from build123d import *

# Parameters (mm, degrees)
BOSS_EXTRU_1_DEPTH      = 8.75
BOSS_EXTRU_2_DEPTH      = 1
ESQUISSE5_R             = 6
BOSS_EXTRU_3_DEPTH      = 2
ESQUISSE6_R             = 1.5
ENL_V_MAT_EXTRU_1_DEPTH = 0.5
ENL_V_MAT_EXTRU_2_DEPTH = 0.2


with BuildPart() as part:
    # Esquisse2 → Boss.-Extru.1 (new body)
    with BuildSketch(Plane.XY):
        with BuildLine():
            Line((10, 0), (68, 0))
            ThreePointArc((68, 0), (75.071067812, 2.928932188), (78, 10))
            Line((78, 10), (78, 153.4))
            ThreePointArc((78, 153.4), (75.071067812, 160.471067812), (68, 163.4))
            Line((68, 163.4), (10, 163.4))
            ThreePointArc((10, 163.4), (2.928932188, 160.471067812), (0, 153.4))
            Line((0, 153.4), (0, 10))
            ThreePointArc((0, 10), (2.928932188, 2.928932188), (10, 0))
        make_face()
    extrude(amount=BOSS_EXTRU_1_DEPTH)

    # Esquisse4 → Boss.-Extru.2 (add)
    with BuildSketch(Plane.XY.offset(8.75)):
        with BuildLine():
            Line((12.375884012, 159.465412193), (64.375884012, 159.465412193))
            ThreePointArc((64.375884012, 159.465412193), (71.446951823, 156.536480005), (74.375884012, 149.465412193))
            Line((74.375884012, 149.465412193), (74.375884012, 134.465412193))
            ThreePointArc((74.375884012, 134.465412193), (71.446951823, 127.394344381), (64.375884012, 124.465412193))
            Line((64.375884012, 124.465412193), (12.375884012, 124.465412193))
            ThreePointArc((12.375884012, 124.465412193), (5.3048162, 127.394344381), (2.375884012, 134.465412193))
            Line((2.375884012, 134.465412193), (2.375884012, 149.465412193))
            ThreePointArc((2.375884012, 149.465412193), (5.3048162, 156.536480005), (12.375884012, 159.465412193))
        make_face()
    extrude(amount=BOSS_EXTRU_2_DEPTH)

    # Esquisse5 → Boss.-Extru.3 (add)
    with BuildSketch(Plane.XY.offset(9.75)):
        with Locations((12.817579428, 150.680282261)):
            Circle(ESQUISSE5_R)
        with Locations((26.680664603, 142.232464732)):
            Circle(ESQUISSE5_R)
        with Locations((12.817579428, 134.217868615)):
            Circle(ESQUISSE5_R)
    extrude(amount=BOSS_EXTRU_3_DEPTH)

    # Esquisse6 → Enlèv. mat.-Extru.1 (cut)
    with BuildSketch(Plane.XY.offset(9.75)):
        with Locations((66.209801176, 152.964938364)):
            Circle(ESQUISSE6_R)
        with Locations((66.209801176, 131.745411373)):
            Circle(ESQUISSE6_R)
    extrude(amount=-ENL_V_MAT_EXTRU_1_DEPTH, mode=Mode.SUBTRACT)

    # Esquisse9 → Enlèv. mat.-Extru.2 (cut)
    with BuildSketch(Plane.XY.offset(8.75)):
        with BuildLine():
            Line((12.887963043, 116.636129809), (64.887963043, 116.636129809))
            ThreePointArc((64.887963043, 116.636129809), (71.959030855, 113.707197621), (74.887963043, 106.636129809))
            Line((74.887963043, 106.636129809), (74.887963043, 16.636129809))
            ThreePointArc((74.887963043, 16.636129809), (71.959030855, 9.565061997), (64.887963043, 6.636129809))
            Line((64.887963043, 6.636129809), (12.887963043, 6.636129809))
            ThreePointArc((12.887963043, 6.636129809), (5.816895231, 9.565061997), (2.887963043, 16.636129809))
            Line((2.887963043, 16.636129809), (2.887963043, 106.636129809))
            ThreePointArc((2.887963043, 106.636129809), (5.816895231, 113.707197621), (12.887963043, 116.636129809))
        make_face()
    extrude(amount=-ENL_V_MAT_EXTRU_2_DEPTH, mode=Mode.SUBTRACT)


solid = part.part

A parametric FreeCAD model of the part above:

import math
import FreeCAD as App
import Part
import Sketcher
from FreeCAD import Vector

doc = App.newDocument("Part")
body = doc.addObject("PartDesign::Body", "Body")

sketch1 = body.newObject("Sketcher::SketchObject", "Sketch")
sketch1.AttachmentSupport = (doc.getObject("XY_Plane"), [""])
sketch1.MapMode = "FlatFace"
sketch1.addGeometry([
    Part.LineSegment(Vector(10, 0, 0), Vector(68, 0, 0)),
    Part.ArcOfCircle(Part.Circle(Vector(68, 10, 0), Vector(0, 0, 1), 10), math.radians(-90), math.radians(0)),
    Part.LineSegment(Vector(78, 10, 0), Vector(78, 153, 0)),
    Part.ArcOfCircle(Part.Circle(Vector(68, 153, 0), Vector(0, 0, 1), 10), math.radians(0), math.radians(90)),
    Part.LineSegment(Vector(68, 163, 0), Vector(10, 163, 0)),
    Part.ArcOfCircle(Part.Circle(Vector(10, 153, 0), Vector(0, 0, 1), 10), math.radians(90), math.radians(180)),
    Part.LineSegment(Vector(0, 153, 0), Vector(0, 10, 0)),
    Part.ArcOfCircle(Part.Circle(Vector(10, 10, 0), Vector(0, 0, 1), 10), math.radians(180), math.radians(270)),
], False)
sketch1.addConstraint([
    Sketcher.Constraint("Tangent", 0, 2, 1, 1),
    Sketcher.Constraint("Tangent", 1, 2, 2, 1),
    Sketcher.Constraint("Tangent", 2, 2, 3, 1),
    Sketcher.Constraint("Tangent", 3, 2, 4, 1),
    Sketcher.Constraint("Tangent", 4, 2, 5, 1),
    Sketcher.Constraint("Tangent", 5, 2, 6, 1),
    Sketcher.Constraint("Tangent", 6, 2, 7, 1),
    Sketcher.Constraint("Tangent", 7, 2, 0, 1),
    Sketcher.Constraint("Horizontal", 0),
    Sketcher.Constraint("Vertical", 2),
    Sketcher.Constraint("Horizontal", 4),
    Sketcher.Constraint("Vertical", 6),
    Sketcher.Constraint("Equal", 1, 3),
    Sketcher.Constraint("Equal", 3, 5),
    Sketcher.Constraint("Equal", 5, 7),
    Sketcher.Constraint("PointOnObject", 0, 2, -1),
    Sketcher.Constraint("PointOnObject", 5, 2, -2),
    Sketcher.Constraint("Radius", 1, 10.0),
    Sketcher.Constraint("DistanceX", 0, 1, 0, 2, 58.0),
    Sketcher.Constraint("DistanceY", 2, 1, 2, 2, 143.4),
])
pad1 = body.newObject("PartDesign::Pad", "Pad")
pad1.Profile = sketch1
pad1.Length = 8.75

sketch2 = body.newObject("Sketcher::SketchObject", "Sketch001")
sketch2.AttachmentSupport = (doc.getObject("XY_Plane"), [""])
sketch2.MapMode = "FlatFace"
sketch2.AttachmentOffset = App.Placement(Vector(0, 0, 8.75), App.Rotation())
sketch2.addGeometry([
    Part.LineSegment(Vector(64, 159, 0), Vector(12, 159, 0)),
    Part.ArcOfCircle(Part.Circle(Vector(12, 149, 0), Vector(0, 0, 1), 10), math.radians(90), math.radians(180)),
    Part.LineSegment(Vector(2, 149, 0), Vector(2, 134, 0)),
    Part.ArcOfCircle(Part.Circle(Vector(12, 134, 0), Vector(0, 0, 1), 10), math.radians(180), math.radians(270)),
    Part.LineSegment(Vector(12, 124, 0), Vector(64, 124, 0)),
    Part.ArcOfCircle(Part.Circle(Vector(64, 134, 0), Vector(0, 0, 1), 10), math.radians(-90), math.radians(0)),
    Part.LineSegment(Vector(74, 134, 0), Vector(74, 149, 0)),
    Part.ArcOfCircle(Part.Circle(Vector(64, 149, 0), Vector(0, 0, 1), 10), math.radians(0), math.radians(90)),
], False)
sketch2.addConstraint([
    Sketcher.Constraint("Tangent", 0, 2, 1, 1),
    Sketcher.Constraint("Tangent", 1, 2, 2, 1),
    Sketcher.Constraint("Tangent", 2, 2, 3, 1),
    Sketcher.Constraint("Tangent", 3, 2, 4, 1),
    Sketcher.Constraint("Tangent", 4, 2, 5, 1),
    Sketcher.Constraint("Tangent", 5, 2, 6, 1),
    Sketcher.Constraint("Tangent", 6, 2, 7, 1),
    Sketcher.Constraint("Tangent", 7, 2, 0, 1),
    Sketcher.Constraint("Horizontal", 0),
    Sketcher.Constraint("Vertical", 2),
    Sketcher.Constraint("Horizontal", 4),
    Sketcher.Constraint("Vertical", 6),
    Sketcher.Constraint("Equal", 1, 3),
    Sketcher.Constraint("Equal", 3, 5),
    Sketcher.Constraint("Equal", 5, 7),
    Sketcher.Constraint("Radius", 1, 10.0),
    Sketcher.Constraint("DistanceX", 0, 2, 0, 1, 52.0),
    Sketcher.Constraint("DistanceY", 2, 2, 2, 1, 15.0),
    Sketcher.Constraint("DistanceX", -1, 1, 1, 3, 12.375884),
    Sketcher.Constraint("DistanceY", -1, 1, 1, 3, 149.465412),
])
pad2 = body.newObject("PartDesign::Pad", "Pad001")
pad2.Profile = sketch2
pad2.Length = 1

sketch3 = body.newObject("Sketcher::SketchObject", "Sketch002")
sketch3.AttachmentSupport = (doc.getObject("XY_Plane"), [""])
sketch3.MapMode = "FlatFace"
sketch3.AttachmentOffset = App.Placement(Vector(0, 0, 9.75), App.Rotation())
sketch3.addGeometry([
    Part.Circle(Vector(13, 151, 0), Vector(0, 0, 1), 6),
    Part.Circle(Vector(27, 142, 0), Vector(0, 0, 1), 6),
    Part.Circle(Vector(13, 134, 0), Vector(0, 0, 1), 6),
], False)
sketch3.addConstraint([
    Sketcher.Constraint("Equal", 0, 1),
    Sketcher.Constraint("Equal", 1, 2),
    Sketcher.Constraint("Vertical", 0, 3, 2, 3),
    Sketcher.Constraint("Diameter", 0, 12.0),
    Sketcher.Constraint("DistanceX", -1, 1, 0, 3, 12.817579),
    Sketcher.Constraint("DistanceY", -1, 1, 2, 3, 134.217869),
    Sketcher.Constraint("DistanceY", -1, 1, 0, 3, 150.680282),
    Sketcher.Constraint("DistanceX", -1, 1, 1, 3, 26.680665),
    Sketcher.Constraint("DistanceY", -1, 1, 1, 3, 142.232465),
])
pad3 = body.newObject("PartDesign::Pad", "Pad002")
pad3.Profile = sketch3
pad3.Length = 2

sketch4 = body.newObject("Sketcher::SketchObject", "Sketch003")
sketch4.AttachmentSupport = (doc.getObject("XY_Plane"), [""])
sketch4.MapMode = "FlatFace"
sketch4.AttachmentOffset = App.Placement(Vector(0, 0, 9.75), App.Rotation())
sketch4.addGeometry([
    Part.Circle(Vector(66.2, 153, 0), Vector(0, 0, 1), 1.5),
    Part.Circle(Vector(66.2, 131.7, 0), Vector(0, 0, 1), 1.5),
], False)
sketch4.addConstraint([
    Sketcher.Constraint("Equal", 0, 1),
    Sketcher.Constraint("Vertical", 0, 3, 1, 3),
    Sketcher.Constraint("Diameter", 0, 3.0),
    Sketcher.Constraint("DistanceX", -1, 1, 0, 3, 66.209801),
    Sketcher.Constraint("DistanceY", -1, 1, 0, 3, 152.964938),
    Sketcher.Constraint("DistanceY", -1, 1, 1, 3, 131.745411),
])
pocket1 = body.newObject("PartDesign::Pocket", "Pocket")
pocket1.Profile = sketch4
pocket1.Length = 0.5

sketch5 = body.newObject("Sketcher::SketchObject", "Sketch004")
sketch5.AttachmentSupport = (doc.getObject("XY_Plane"), [""])
sketch5.MapMode = "FlatFace"
sketch5.AttachmentOffset = App.Placement(Vector(0, 0, 8.75), App.Rotation())
sketch5.addGeometry([
    Part.LineSegment(Vector(65, 117, 0), Vector(13, 117, 0)),
    Part.ArcOfCircle(Part.Circle(Vector(13, 107, 0), Vector(0, 0, 1), 10), math.radians(90), math.radians(180)),
    Part.LineSegment(Vector(3, 107, 0), Vector(3, 17, 0)),
    Part.ArcOfCircle(Part.Circle(Vector(13, 17, 0), Vector(0, 0, 1), 10), math.radians(180), math.radians(270)),
    Part.LineSegment(Vector(13, 7, 0), Vector(65, 7, 0)),
    Part.ArcOfCircle(Part.Circle(Vector(65, 17, 0), Vector(0, 0, 1), 10), math.radians(-90), math.radians(0)),
    Part.LineSegment(Vector(75, 17, 0), Vector(75, 107, 0)),
    Part.ArcOfCircle(Part.Circle(Vector(65, 107, 0), Vector(0, 0, 1), 10), math.radians(0), math.radians(90)),
], False)
sketch5.addConstraint([
    Sketcher.Constraint("Tangent", 0, 2, 1, 1),
    Sketcher.Constraint("Tangent", 1, 2, 2, 1),
    Sketcher.Constraint("Tangent", 2, 2, 3, 1),
    Sketcher.Constraint("Tangent", 3, 2, 4, 1),
    Sketcher.Constraint("Tangent", 4, 2, 5, 1),
    Sketcher.Constraint("Tangent", 5, 2, 6, 1),
    Sketcher.Constraint("Tangent", 6, 2, 7, 1),
    Sketcher.Constraint("Tangent", 7, 2, 0, 1),
    Sketcher.Constraint("Horizontal", 0),
    Sketcher.Constraint("Vertical", 2),
    Sketcher.Constraint("Horizontal", 4),
    Sketcher.Constraint("Vertical", 6),
    Sketcher.Constraint("Equal", 1, 3),
    Sketcher.Constraint("Equal", 3, 5),
    Sketcher.Constraint("Equal", 5, 7),
    Sketcher.Constraint("Radius", 1, 10.0),
    Sketcher.Constraint("DistanceX", 0, 2, 0, 1, 52.0),
    Sketcher.Constraint("DistanceY", 2, 2, 2, 1, 90.0),
    Sketcher.Constraint("DistanceY", -1, 1, 1, 3, 106.63613),
    Sketcher.Constraint("DistanceX", -1, 1, 1, 3, 12.887963),
])
pocket2 = body.newObject("PartDesign::Pocket", "Pocket001")
pocket2.Profile = sketch5
pocket2.Length = 0.2

doc.recompute()
